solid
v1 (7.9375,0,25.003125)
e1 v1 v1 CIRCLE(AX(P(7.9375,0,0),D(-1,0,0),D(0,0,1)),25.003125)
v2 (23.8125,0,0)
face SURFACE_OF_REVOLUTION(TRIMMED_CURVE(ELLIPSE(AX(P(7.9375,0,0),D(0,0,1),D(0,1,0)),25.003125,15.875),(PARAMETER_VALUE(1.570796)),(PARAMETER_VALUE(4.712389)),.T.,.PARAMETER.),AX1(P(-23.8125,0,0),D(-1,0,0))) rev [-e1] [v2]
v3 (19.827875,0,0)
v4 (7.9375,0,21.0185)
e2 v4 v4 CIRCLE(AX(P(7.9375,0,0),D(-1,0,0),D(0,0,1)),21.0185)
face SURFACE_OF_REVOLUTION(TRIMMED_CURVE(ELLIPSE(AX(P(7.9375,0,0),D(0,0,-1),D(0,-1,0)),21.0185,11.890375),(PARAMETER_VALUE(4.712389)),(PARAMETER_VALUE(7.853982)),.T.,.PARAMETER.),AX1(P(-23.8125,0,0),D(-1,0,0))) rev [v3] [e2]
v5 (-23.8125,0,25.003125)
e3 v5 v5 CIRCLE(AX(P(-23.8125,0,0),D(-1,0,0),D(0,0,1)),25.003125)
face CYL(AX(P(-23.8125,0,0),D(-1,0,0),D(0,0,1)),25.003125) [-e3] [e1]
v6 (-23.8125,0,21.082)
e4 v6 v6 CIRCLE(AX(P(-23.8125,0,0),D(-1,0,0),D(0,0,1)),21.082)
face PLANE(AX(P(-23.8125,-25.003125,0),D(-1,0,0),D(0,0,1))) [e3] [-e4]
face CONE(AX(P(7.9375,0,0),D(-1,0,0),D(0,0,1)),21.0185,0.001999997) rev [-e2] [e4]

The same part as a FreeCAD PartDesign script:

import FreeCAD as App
import Part
import Sketcher
from FreeCAD import Vector
Q = App.Units.Quantity

doc = App.newDocument("Part")
body = doc.addObject("PartDesign::Body", "Body")

sketch1 = body.newObject("Sketcher::SketchObject", "Sketch")
sketch1.AttachmentSupport = (doc.getObject("XY_Plane"), [""])
sketch1.MapMode = "FlatFace"
sketch1.addGeometry(Part.LineSegment(Vector(23.8125, 0, 0), Vector(19.827875, 0, 0)), False)
sketch1.addGeometry(Part.BSplineCurve([Vector(7.9375, -21.0185, 0), Vector(19.827875, -21.0185, 0), Vector(19.827875, 0, 0)], [3, 3], [0, 1.570796327], False, 2, [1, 0.707106781, 1], False), False)
sketch1.addGeometry(Part.LineSegment(Vector(7.9375, -21.0185, 0), Vector(-23.8125, -21.082, 0)), False)
sketch1.addGeometry(Part.LineSegment(Vector(-23.8125, -21.082, 0), Vector(-23.8125, -25.003125, 0)), False)
sketch1.addGeometry(Part.LineSegment(Vector(-23.8125, -25.003125, 0), Vector(7.9375, -25.003125, 0)), False)
sketch1.addGeometry(Part.BSplineCurve([Vector(7.9375, -25.003125, 0), Vector(23.8125, -25.003125, 0), Vector(23.8125, 0, 0)], [3, 3], [3.141592654, 4.71238898], False, 2, [1, 0.707106781, 1], False), False)
sketch1.addConstraint(Sketcher.Constraint("Block", 1))
sketch1.addConstraint(Sketcher.Constraint("Block", 5))
sketch1.addConstraint(Sketcher.Constraint("Coincident", 0, 2, 1, 2))
sketch1.addConstraint(Sketcher.Constraint("Coincident", 1, 1, 2, 1))
sketch1.addConstraint(Sketcher.Constraint("Coincident", 2, 2, 3, 1))
sketch1.addConstraint(Sketcher.Constraint("Coincident", 3, 2, 4, 1))
sketch1.addConstraint(Sketcher.Constraint("Coincident", 4, 2, 5, 1))
sketch1.addConstraint(Sketcher.Constraint("Coincident", 5, 2, 0, 1))
sketch1.addConstraint(Sketcher.Constraint("Vertical", 3))
sketch1.addConstraint(Sketcher.Constraint("Horizontal", 4))
sketch1.addConstraint(Sketcher.Constraint("DistanceX", 4, 1, 4, 2, Q("1.25 in")))
sketch1.addConstraint(Sketcher.Constraint("DistanceY", 2, 2, -1, 1, Q("0.83 in")))
revolution = body.newObject("PartDesign::Revolution", "Revolution")
revolution.Profile = sketch1
revolution.ReferenceAxis = (sketch1, ["H_Axis"])
revolution.Angle = 360

doc.recompute()
